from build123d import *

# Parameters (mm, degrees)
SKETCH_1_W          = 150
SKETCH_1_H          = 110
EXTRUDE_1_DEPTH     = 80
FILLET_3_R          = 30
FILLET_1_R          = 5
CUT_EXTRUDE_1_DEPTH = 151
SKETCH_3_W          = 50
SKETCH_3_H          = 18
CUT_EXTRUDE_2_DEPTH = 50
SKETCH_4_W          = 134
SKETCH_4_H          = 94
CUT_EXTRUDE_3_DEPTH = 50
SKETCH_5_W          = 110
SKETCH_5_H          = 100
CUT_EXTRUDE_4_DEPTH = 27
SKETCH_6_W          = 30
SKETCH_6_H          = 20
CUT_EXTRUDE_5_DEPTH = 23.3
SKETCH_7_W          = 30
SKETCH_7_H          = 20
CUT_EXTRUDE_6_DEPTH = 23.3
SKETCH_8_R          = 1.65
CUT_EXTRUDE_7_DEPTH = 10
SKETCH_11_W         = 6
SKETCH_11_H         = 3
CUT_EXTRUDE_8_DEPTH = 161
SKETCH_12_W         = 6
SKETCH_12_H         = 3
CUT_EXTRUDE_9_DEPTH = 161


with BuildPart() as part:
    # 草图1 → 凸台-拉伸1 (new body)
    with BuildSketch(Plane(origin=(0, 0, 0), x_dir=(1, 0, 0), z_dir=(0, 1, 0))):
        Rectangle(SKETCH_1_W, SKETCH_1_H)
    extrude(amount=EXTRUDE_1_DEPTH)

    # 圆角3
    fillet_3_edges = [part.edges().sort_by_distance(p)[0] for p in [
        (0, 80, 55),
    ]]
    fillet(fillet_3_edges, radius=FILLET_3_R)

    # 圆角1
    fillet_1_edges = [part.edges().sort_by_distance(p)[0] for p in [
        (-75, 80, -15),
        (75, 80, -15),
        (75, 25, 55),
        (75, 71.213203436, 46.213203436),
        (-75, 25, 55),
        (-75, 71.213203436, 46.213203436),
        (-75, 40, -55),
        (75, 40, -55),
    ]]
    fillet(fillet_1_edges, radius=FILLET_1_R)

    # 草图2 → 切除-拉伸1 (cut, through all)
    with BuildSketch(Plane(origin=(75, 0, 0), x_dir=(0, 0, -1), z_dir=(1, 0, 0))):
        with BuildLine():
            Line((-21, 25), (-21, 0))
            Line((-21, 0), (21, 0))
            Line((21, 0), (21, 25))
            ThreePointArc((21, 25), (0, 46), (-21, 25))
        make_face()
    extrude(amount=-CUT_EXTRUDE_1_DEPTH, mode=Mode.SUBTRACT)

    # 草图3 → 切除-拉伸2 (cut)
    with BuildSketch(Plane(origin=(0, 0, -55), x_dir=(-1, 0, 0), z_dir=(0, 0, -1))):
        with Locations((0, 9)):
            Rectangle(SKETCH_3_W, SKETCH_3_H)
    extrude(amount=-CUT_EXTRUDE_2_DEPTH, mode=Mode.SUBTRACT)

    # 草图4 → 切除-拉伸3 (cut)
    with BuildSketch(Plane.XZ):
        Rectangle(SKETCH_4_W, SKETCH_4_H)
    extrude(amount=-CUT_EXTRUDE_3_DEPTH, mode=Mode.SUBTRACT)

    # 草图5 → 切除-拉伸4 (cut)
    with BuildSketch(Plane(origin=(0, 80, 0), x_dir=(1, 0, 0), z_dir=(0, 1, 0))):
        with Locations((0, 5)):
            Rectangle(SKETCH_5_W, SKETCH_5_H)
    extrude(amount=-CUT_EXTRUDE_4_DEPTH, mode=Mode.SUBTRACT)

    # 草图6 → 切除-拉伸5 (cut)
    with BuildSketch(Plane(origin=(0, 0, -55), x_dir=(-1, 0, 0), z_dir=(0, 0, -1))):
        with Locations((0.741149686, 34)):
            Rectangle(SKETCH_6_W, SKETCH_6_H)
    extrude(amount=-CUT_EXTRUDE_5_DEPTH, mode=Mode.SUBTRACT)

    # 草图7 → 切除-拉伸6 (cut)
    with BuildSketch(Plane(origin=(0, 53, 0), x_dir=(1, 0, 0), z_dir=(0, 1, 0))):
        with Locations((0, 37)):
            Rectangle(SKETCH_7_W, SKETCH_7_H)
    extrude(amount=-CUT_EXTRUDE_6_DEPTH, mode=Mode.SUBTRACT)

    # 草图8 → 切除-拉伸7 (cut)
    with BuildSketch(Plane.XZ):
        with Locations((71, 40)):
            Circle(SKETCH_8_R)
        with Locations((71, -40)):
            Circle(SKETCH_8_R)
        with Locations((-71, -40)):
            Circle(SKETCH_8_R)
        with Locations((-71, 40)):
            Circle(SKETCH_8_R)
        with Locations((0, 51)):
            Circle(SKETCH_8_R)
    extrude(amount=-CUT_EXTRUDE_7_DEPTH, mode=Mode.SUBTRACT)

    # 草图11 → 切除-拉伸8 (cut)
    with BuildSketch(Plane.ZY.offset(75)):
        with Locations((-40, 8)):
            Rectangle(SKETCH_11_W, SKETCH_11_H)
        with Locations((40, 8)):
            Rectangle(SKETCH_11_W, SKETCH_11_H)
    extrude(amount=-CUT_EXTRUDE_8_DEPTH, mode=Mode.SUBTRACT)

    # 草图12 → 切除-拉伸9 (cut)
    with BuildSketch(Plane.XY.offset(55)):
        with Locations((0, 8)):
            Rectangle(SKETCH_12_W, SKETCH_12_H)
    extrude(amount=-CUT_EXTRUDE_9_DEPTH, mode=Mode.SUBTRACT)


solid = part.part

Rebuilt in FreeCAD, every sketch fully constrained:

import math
import FreeCAD as App
import Part
import Sketcher
from FreeCAD import Vector
Q = App.Units.Quantity


def edges_at(feature, points):
    """Names of the edges that pass closest to the given points."""
    edges = feature.Shape.Edges
    near = lambda p: min(range(len(edges)), key=lambda i: edges[i].distToShape(Part.Vertex(*p))[0])
    return sorted({f"Edge{near(p) + 1}" for p in points})


def add_polygon(sketch, points):
    """Adds a closed chain of lines whose ends are joined by coincident constraints."""
    first, n = sketch.GeometryCount, len(points)
    for a, b in zip(points, points[1:] + points[:1]):
        sketch.addGeometry(Part.LineSegment(App.Vector(*a, 0), App.Vector(*b, 0)), False)
    for i in range(n):
        sketch.addConstraint(Sketcher.Constraint("Coincident", first + i, 2, first + (i + 1) % n, 1))

doc = App.newDocument("Part")
body = doc.addObject("PartDesign::Body", "Body")

sketch1 = doc.addObject("Sketcher::SketchObject", "Sketch")
body.addObject(sketch1)
sketch1.AttachmentSupport = (doc.XZ_Plane, [""])
sketch1.MapMode = "FlatFace"
add_polygon(sketch1, [(-75, -55), (-75, 55), (75, 55), (75, -55)])
sketch1.addConstraint(Sketcher.Constraint("Vertical", 0))
sketch1.addConstraint(Sketcher.Constraint("Horizontal", 1))
sketch1.addConstraint(Sketcher.Constraint("Vertical", 2))
sketch1.addConstraint(Sketcher.Constraint("Horizontal", 3))
sketch1.addConstraint(Sketcher.Constraint("Symmetric", 0, 2, 2, 2, -1, 1))
sketch1.addConstraint(Sketcher.Constraint("DistanceX", 1, 1, 1, 2, Q("150 mm")))
sketch1.addConstraint(Sketcher.Constraint("DistanceY", 0, 1, 0, 2, Q("110 mm")))
pad1 = doc.addObject("PartDesign::Pad", "Pad")
body.addObject(pad1)
pad1.Profile = sketch1
pad1.Length = 80
pad1.Reversed = True
doc.recompute()

fillet = doc.addObject("PartDesign::Fillet", "Fillet")
body.addObject(fillet)
fillet.Base = (pad1, edges_at(pad1, [(0, 80, 55)]))
fillet.Radius = 30
doc.recompute()

fillet2 = doc.addObject("PartDesign::Fillet", "Fillet001")
body.addObject(fillet2)
fillet2.Base = (fillet, edges_at(fillet, [
    (-75, 80, -15),
    (75, 80, -15),
    (75, 25, 55),
    (75, 71.213, 46.213),
    (-75, 25, 55),
    (-75, 71.213, 46.213),
    (-75, 40, -55),
    (75, 40, -55),
]))
fillet2.Radius = 5

sketch2 = doc.addObject("Sketcher::SketchObject", "Sketch001")
body.addObject(sketch2)
sketch2.AttachmentSupport = (doc.YZ_Plane, [""])
sketch2.MapMode = "FlatFace"
sketch2.AttachmentOffset = App.Placement(Vector(0, 0, 75), App.Rotation())
sketch2.addGeometry(Part.LineSegment(Vector(25, 21, 0), Vector(0, 21, 0)), False)
sketch2.addGeometry(Part.LineSegment(Vector(0, 21, 0), Vector(0, -21, 0)), False)
sketch2.addGeometry(Part.LineSegment(Vector(0, -21, 0), Vector(25, -21, 0)), False)
sketch2.addGeometry(Part.ArcOfCircle(Part.Circle(Vector(25, 0, 0), Vector(0, 0, 1), 21), math.radians(-90), math.radians(90)), False)
sketch2.addConstraint(Sketcher.Constraint("Coincident", 0, 2, 1, 1))
sketch2.addConstraint(Sketcher.Constraint("Coincident", 1, 2, 2, 1))
sketch2.addConstraint(Sketcher.Constraint("Tangent", 2, 2, 3, 1))
sketch2.addConstraint(Sketcher.Constraint("Tangent", 3, 2, 0, 1))
sketch2.addConstraint(Sketcher.Constraint("Horizontal", 0))
sketch2.addConstraint(Sketcher.Constraint("Vertical", 1))
sketch2.addConstraint(Sketcher.Constraint("Horizontal", 2))
sketch2.addConstraint(Sketcher.Constraint("Symmetric", 0, 2, 1, 2, -1, 1))
sketch2.addConstraint(Sketcher.Constraint("Radius", 3, Q("21 mm")))
sketch2.addConstraint(Sketcher.Constraint("DistanceX", 0, 2, 0, 1, Q("25 mm")))
pocket1 = doc.addObject("PartDesign::Pocket", "Pocket")
body.addObject(pocket1)
pocket1.Profile = sketch2
pocket1.Type = "ThroughAll"

sketch3 = doc.addObject("Sketcher::SketchObject", "Sketch002")
body.addObject(sketch3)
sketch3.AttachmentSupport = (doc.XY_Plane, [""])
sketch3.MapMode = "FlatFace"
sketch3.AttachmentOffset = App.Placement(Vector(0, 0, -55), App.Rotation())
add_polygon(sketch3, [(25, 18), (25, 0), (-25, 0), (-25, 18)])
sketch3.addConstraint(Sketcher.Constraint("Vertical", 0))
sketch3.addConstraint(Sketcher.Constraint("Horizontal", 1))
sketch3.addConstraint(Sketcher.Constraint("Vertical", 2))
sketch3.addConstraint(Sketcher.Constraint("Horizontal", 3))
sketch3.addConstraint(Sketcher.Constraint("Symmetric", 0, 2, 1, 2, -1, 1))
sketch3.addConstraint(Sketcher.Constraint("DistanceX", 1, 2, 1, 1, Q("50 mm")))
sketch3.addConstraint(Sketcher.Constraint("DistanceY", 0, 2, 0, 1, Q("18 mm")))
pocket2 = doc.addObject("PartDesign::Pocket", "Pocket001")
body.addObject(pocket2)
pocket2.Profile = sketch3
pocket2.Length = 50
pocket2.Reversed = True

sketch4 = doc.addObject("Sketcher::SketchObject", "Sketch003")
body.addObject(sketch4)
sketch4.AttachmentSupport = (doc.XZ_Plane, [""])
sketch4.MapMode = "FlatFace"
add_polygon(sketch4, [(-67, 47), (-67, -47), (67, -47), (67, 47)])
sketch4.addConstraint(Sketcher.Constraint("Vertical", 0))
sketch4.addConstraint(Sketcher.Constraint("Horizontal", 1))
sketch4.addConstraint(Sketcher.Constraint("Vertical", 2))
sketch4.addConstraint(Sketcher.Constraint("Horizontal", 3))
sketch4.addConstraint(Sketcher.Constraint("Symmetric", 0, 2, 2, 2, -1, 1))
sketch4.addConstraint(Sketcher.Constraint("DistanceX", 1, 1, 1, 2, Q("134 mm")))
sketch4.addConstraint(Sketcher.Constraint("DistanceY", 0, 2, 0, 1, Q("94 mm")))
pocket3 = doc.addObject("PartDesign::Pocket", "Pocket002")
body.addObject(pocket3)
pocket3.Profile = sketch4
pocket3.Length = 50

sketch5 = doc.addObject("Sketcher::SketchObject", "Sketch004")
body.addObject(sketch5)
sketch5.AttachmentSupport = (doc.XZ_Plane, [""])
sketch5.MapMode = "FlatFace"
sketch5.AttachmentOffset = App.Placement(Vector(0, 0, -80), App.Rotation())
add_polygon(sketch5, [(-55, -55), (-55, 45), (55, 45), (55, -55)])
sketch5.addConstraint(Sketcher.Constraint("Vertical", 0))
sketch5.addConstraint(Sketcher.Constraint("Horizontal", 1))
sketch5.addConstraint(Sketcher.Constraint("Vertical", 2))
sketch5.addConstraint(Sketcher.Constraint("Horizontal", 3))
sketch5.addConstraint(Sketcher.Constraint("DistanceX", 1, 1, 1, 2, Q("110 mm")))
sketch5.addConstraint(Sketcher.Constraint("DistanceY", 0, 1, 0, 2, Q("100 mm")))
sketch5.addConstraint(Sketcher.Constraint("DistanceX", 0, 2, -1, 1, Q("55 mm")))
sketch5.addConstraint(Sketcher.Constraint("DistanceY", -1, 1, 0, 2, Q("45 mm")))
pocket4 = doc.addObject("PartDesign::Pocket", "Pocket003")
body.addObject(pocket4)
pocket4.Profile = sketch5
pocket4.Length = 27
pocket4.Reversed = True

sketch6 = doc.addObject("Sketcher::SketchObject", "Sketch005")
body.addObject(sketch6)
sketch6.AttachmentSupport = (doc.XY_Plane, [""])
sketch6.MapMode = "FlatFace"
sketch6.AttachmentOffset = App.Placement(Vector(0, 0, -55), App.Rotation())
add_polygon(sketch6, [(14, 44), (14, 24), (-16, 24), (-16, 44)])
sketch6.addConstraint(Sketcher.Constraint("Vertical", 0))
sketch6.addConstraint(Sketcher.Constraint("Horizontal", 1))
sketch6.addConstraint(Sketcher.Constraint("Vertical", 2))
sketch6.addConstraint(Sketcher.Constraint("Horizontal", 3))
sketch6.addConstraint(Sketcher.Constraint("DistanceX", 1, 2, 1, 1, Q("30 mm")))
sketch6.addConstraint(Sketcher.Constraint("DistanceY", 0, 2, 0, 1, Q("20 mm")))
sketch6.addConstraint(Sketcher.Constraint("DistanceY", -1, 1, 0, 2, Q("24 mm")))
sketch6.addConstraint(Sketcher.Constraint("DistanceX", -1, 1, 0, 2, Q("14.25885 mm")))
pocket5 = doc.addObject("PartDesign::Pocket", "Pocket004")
body.addObject(pocket5)
pocket5.Profile = sketch6
pocket5.Length = 23.3
pocket5.Reversed = True

sketch7 = doc.addObject("Sketcher::SketchObject", "Sketch006")
body.addObject(sketch7)
sketch7.AttachmentSupport = (doc.XZ_Plane, [""])
sketch7.MapMode = "FlatFace"
sketch7.AttachmentOffset = App.Placement(Vector(0, 0, -53), App.Rotation())
add_polygon(sketch7, [(-15, -47), (-15, -27), (15, -27), (15, -47)])
sketch7.addConstraint(Sketcher.Constraint("Vertical", 0))
sketch7.addConstraint(Sketcher.Constraint("Horizontal", 1))
sketch7.addConstraint(Sketcher.Constraint("Vertical", 2))
sketch7.addConstraint(Sketcher.Constraint("Horizontal", 3))
sketch7.addConstraint(Sketcher.Constraint("DistanceX", 1, 1, 1, 2, Q("30 mm")))
sketch7.addConstraint(Sketcher.Constraint("DistanceY", 0, 1, 0, 2, Q("20 mm")))
sketch7.addConstraint(Sketcher.Constraint("DistanceX", 0, 2, -1, 1, Q("15 mm")))
sketch7.addConstraint(Sketcher.Constraint("DistanceY", 0, 2, -1, 1, Q("27 mm")))
pocket6 = doc.addObject("PartDesign::Pocket", "Pocket005")
body.addObject(pocket6)
pocket6.Profile = sketch7
pocket6.Length = 23.3
pocket6.Reversed = True

sketch8 = doc.addObject("Sketcher::SketchObject", "Sketch007")
body.addObject(sketch8)
sketch8.AttachmentSupport = (doc.XZ_Plane, [""])
sketch8.MapMode = "FlatFace"
sketch8.addGeometry(Part.Circle(Vector(71, 40, 0), Vector(0, 0, 1), 1.6), False)
sketch8.addGeometry(Part.Circle(Vector(71, -40, 0), Vector(0, 0, 1), 1.6), False)
sketch8.addGeometry(Part.Circle(Vector(-71, -40, 0), Vector(0, 0, 1), 1.6), False)
sketch8.addGeometry(Part.Circle(Vector(-71, 40, 0), Vector(0, 0, 1), 1.6), False)
sketch8.addGeometry(Part.Circle(Vector(0, 51, 0), Vector(0, 0, 1), 1.6), False)
sketch8.addConstraint(Sketcher.Constraint("Equal", 0, 1))
sketch8.addConstraint(Sketcher.Constraint("Equal", 1, 2))
sketch8.addConstraint(Sketcher.Constraint("Equal", 2, 3))
sketch8.addConstraint(Sketcher.Constraint("Equal", 3, 4))
sketch8.addConstraint(Sketcher.Constraint("Symmetric", 0, 3, 2, 3, -1, 1))
sketch8.addConstraint(Sketcher.Constraint("Symmetric", 1, 3, 3, 3, -1, 1))
sketch8.addConstraint(Sketcher.Constraint("Symmetric", 1, 3, 2, 3, -2))
sketch8.addConstraint(Sketcher.Constraint("PointOnObject", 4, 3, -2))
sketch8.addConstraint(Sketcher.Constraint("Diameter", 0, Q("3.3 mm")))
sketch8.addConstraint(Sketcher.Constraint("DistanceX", -1, 1, 0, 3, Q("71 mm")))
sketch8.addConstraint(Sketcher.Constraint("DistanceY", -1, 1, 0, 3, Q("40 mm")))
sketch8.addConstraint(Sketcher.Constraint("DistanceY", -1, 1, 4, 3, Q("51 mm")))
pocket7 = doc.addObject("PartDesign::Pocket", "Pocket006")
body.addObject(pocket7)
pocket7.Profile = sketch8
pocket7.Length = 10

sketch9 = doc.addObject("Sketcher::SketchObject", "Sketch008")
body.addObject(sketch9)
sketch9.AttachmentSupport = (doc.YZ_Plane, [""])
sketch9.MapMode = "FlatFace"
sketch9.AttachmentOffset = App.Placement(Vector(0, 0, -75), App.Rotation())
add_polygon(sketch9, [(9.5, -43), (6.5, -43), (6.5, -37), (9.5, -37)])
add_polygon(sketch9, [(9.5, 37), (6.5, 37), (6.5, 43), (9.5, 43)])
sketch9.addConstraint(Sketcher.Constraint("Horizontal", 0))
sketch9.addConstraint(Sketcher.Constraint("Vertical", 1))
sketch9.addConstraint(Sketcher.Constraint("Horizontal", 2))
sketch9.addConstraint(Sketcher.Constraint("Vertical", 3))
sketch9.addConstraint(Sketcher.Constraint("Horizontal", 4))
sketch9.addConstraint(Sketcher.Constraint("Vertical", 5))
sketch9.addConstraint(Sketcher.Constraint("Horizontal", 6))
sketch9.addConstraint(Sketcher.Constraint("Vertical", 7))
sketch9.addConstraint(Sketcher.Constraint("Symmetric", 1, 2, 4, 2, -1))
sketch9.addConstraint(Sketcher.Constraint("Symmetric", 3, 2, 6, 2, -1))
sketch9.addConstraint(Sketcher.Constraint("DistanceX", 0, 2, 0, 1, Q("3 mm")))
sketch9.addConstraint(Sketcher.Constraint("DistanceY", 1, 1, 1, 2, Q("6 mm")))
sketch9.addConstraint(Sketcher.Constraint("DistanceY", 0, 2, -1, 1, Q("43 mm")))
sketch9.addConstraint(Sketcher.Constraint("DistanceX", -1, 1, 0, 2, Q("6.5 mm")))
pocket8 = doc.addObject("PartDesign::Pocket", "Pocket007")
body.addObject(pocket8)
pocket8.Profile = sketch9
pocket8.Length = 161
pocket8.Reversed = True

sketch10 = doc.addObject("Sketcher::SketchObject", "Sketch009")
body.addObject(sketch10)
sketch10.AttachmentSupport = (doc.XY_Plane, [""])
sketch10.MapMode = "FlatFace"
sketch10.AttachmentOffset = App.Placement(Vector(0, 0, 55), App.Rotation())
add_polygon(sketch10, [(-3, 9.5), (-3, 6.5), (3, 6.5), (3, 9.5)])
sketch10.addConstraint(Sketcher.Constraint("Vertical", 0))
sketch10.addConstraint(Sketcher.Constraint("Horizontal", 1))
sketch10.addConstraint(Sketcher.Constraint("Vertical", 2))
sketch10.addConstraint(Sketcher.Constraint("Horizontal", 3))
sketch10.addConstraint(Sketcher.Constraint("DistanceX", 1, 1, 1, 2, Q("6 mm")))
sketch10.addConstraint(Sketcher.Constraint("DistanceY", 0, 2, 0, 1, Q("3 mm")))
sketch10.addConstraint(Sketcher.Constraint("DistanceX", 0, 2, -1, 1, Q("3 mm")))
sketch10.addConstraint(Sketcher.Constraint("DistanceY", -1, 1, 0, 2, Q("6.5 mm")))
pocket9 = doc.addObject("PartDesign::Pocket", "Pocket008")
body.addObject(pocket9)
pocket9.Profile = sketch10
pocket9.Length = 161

doc.recompute()
